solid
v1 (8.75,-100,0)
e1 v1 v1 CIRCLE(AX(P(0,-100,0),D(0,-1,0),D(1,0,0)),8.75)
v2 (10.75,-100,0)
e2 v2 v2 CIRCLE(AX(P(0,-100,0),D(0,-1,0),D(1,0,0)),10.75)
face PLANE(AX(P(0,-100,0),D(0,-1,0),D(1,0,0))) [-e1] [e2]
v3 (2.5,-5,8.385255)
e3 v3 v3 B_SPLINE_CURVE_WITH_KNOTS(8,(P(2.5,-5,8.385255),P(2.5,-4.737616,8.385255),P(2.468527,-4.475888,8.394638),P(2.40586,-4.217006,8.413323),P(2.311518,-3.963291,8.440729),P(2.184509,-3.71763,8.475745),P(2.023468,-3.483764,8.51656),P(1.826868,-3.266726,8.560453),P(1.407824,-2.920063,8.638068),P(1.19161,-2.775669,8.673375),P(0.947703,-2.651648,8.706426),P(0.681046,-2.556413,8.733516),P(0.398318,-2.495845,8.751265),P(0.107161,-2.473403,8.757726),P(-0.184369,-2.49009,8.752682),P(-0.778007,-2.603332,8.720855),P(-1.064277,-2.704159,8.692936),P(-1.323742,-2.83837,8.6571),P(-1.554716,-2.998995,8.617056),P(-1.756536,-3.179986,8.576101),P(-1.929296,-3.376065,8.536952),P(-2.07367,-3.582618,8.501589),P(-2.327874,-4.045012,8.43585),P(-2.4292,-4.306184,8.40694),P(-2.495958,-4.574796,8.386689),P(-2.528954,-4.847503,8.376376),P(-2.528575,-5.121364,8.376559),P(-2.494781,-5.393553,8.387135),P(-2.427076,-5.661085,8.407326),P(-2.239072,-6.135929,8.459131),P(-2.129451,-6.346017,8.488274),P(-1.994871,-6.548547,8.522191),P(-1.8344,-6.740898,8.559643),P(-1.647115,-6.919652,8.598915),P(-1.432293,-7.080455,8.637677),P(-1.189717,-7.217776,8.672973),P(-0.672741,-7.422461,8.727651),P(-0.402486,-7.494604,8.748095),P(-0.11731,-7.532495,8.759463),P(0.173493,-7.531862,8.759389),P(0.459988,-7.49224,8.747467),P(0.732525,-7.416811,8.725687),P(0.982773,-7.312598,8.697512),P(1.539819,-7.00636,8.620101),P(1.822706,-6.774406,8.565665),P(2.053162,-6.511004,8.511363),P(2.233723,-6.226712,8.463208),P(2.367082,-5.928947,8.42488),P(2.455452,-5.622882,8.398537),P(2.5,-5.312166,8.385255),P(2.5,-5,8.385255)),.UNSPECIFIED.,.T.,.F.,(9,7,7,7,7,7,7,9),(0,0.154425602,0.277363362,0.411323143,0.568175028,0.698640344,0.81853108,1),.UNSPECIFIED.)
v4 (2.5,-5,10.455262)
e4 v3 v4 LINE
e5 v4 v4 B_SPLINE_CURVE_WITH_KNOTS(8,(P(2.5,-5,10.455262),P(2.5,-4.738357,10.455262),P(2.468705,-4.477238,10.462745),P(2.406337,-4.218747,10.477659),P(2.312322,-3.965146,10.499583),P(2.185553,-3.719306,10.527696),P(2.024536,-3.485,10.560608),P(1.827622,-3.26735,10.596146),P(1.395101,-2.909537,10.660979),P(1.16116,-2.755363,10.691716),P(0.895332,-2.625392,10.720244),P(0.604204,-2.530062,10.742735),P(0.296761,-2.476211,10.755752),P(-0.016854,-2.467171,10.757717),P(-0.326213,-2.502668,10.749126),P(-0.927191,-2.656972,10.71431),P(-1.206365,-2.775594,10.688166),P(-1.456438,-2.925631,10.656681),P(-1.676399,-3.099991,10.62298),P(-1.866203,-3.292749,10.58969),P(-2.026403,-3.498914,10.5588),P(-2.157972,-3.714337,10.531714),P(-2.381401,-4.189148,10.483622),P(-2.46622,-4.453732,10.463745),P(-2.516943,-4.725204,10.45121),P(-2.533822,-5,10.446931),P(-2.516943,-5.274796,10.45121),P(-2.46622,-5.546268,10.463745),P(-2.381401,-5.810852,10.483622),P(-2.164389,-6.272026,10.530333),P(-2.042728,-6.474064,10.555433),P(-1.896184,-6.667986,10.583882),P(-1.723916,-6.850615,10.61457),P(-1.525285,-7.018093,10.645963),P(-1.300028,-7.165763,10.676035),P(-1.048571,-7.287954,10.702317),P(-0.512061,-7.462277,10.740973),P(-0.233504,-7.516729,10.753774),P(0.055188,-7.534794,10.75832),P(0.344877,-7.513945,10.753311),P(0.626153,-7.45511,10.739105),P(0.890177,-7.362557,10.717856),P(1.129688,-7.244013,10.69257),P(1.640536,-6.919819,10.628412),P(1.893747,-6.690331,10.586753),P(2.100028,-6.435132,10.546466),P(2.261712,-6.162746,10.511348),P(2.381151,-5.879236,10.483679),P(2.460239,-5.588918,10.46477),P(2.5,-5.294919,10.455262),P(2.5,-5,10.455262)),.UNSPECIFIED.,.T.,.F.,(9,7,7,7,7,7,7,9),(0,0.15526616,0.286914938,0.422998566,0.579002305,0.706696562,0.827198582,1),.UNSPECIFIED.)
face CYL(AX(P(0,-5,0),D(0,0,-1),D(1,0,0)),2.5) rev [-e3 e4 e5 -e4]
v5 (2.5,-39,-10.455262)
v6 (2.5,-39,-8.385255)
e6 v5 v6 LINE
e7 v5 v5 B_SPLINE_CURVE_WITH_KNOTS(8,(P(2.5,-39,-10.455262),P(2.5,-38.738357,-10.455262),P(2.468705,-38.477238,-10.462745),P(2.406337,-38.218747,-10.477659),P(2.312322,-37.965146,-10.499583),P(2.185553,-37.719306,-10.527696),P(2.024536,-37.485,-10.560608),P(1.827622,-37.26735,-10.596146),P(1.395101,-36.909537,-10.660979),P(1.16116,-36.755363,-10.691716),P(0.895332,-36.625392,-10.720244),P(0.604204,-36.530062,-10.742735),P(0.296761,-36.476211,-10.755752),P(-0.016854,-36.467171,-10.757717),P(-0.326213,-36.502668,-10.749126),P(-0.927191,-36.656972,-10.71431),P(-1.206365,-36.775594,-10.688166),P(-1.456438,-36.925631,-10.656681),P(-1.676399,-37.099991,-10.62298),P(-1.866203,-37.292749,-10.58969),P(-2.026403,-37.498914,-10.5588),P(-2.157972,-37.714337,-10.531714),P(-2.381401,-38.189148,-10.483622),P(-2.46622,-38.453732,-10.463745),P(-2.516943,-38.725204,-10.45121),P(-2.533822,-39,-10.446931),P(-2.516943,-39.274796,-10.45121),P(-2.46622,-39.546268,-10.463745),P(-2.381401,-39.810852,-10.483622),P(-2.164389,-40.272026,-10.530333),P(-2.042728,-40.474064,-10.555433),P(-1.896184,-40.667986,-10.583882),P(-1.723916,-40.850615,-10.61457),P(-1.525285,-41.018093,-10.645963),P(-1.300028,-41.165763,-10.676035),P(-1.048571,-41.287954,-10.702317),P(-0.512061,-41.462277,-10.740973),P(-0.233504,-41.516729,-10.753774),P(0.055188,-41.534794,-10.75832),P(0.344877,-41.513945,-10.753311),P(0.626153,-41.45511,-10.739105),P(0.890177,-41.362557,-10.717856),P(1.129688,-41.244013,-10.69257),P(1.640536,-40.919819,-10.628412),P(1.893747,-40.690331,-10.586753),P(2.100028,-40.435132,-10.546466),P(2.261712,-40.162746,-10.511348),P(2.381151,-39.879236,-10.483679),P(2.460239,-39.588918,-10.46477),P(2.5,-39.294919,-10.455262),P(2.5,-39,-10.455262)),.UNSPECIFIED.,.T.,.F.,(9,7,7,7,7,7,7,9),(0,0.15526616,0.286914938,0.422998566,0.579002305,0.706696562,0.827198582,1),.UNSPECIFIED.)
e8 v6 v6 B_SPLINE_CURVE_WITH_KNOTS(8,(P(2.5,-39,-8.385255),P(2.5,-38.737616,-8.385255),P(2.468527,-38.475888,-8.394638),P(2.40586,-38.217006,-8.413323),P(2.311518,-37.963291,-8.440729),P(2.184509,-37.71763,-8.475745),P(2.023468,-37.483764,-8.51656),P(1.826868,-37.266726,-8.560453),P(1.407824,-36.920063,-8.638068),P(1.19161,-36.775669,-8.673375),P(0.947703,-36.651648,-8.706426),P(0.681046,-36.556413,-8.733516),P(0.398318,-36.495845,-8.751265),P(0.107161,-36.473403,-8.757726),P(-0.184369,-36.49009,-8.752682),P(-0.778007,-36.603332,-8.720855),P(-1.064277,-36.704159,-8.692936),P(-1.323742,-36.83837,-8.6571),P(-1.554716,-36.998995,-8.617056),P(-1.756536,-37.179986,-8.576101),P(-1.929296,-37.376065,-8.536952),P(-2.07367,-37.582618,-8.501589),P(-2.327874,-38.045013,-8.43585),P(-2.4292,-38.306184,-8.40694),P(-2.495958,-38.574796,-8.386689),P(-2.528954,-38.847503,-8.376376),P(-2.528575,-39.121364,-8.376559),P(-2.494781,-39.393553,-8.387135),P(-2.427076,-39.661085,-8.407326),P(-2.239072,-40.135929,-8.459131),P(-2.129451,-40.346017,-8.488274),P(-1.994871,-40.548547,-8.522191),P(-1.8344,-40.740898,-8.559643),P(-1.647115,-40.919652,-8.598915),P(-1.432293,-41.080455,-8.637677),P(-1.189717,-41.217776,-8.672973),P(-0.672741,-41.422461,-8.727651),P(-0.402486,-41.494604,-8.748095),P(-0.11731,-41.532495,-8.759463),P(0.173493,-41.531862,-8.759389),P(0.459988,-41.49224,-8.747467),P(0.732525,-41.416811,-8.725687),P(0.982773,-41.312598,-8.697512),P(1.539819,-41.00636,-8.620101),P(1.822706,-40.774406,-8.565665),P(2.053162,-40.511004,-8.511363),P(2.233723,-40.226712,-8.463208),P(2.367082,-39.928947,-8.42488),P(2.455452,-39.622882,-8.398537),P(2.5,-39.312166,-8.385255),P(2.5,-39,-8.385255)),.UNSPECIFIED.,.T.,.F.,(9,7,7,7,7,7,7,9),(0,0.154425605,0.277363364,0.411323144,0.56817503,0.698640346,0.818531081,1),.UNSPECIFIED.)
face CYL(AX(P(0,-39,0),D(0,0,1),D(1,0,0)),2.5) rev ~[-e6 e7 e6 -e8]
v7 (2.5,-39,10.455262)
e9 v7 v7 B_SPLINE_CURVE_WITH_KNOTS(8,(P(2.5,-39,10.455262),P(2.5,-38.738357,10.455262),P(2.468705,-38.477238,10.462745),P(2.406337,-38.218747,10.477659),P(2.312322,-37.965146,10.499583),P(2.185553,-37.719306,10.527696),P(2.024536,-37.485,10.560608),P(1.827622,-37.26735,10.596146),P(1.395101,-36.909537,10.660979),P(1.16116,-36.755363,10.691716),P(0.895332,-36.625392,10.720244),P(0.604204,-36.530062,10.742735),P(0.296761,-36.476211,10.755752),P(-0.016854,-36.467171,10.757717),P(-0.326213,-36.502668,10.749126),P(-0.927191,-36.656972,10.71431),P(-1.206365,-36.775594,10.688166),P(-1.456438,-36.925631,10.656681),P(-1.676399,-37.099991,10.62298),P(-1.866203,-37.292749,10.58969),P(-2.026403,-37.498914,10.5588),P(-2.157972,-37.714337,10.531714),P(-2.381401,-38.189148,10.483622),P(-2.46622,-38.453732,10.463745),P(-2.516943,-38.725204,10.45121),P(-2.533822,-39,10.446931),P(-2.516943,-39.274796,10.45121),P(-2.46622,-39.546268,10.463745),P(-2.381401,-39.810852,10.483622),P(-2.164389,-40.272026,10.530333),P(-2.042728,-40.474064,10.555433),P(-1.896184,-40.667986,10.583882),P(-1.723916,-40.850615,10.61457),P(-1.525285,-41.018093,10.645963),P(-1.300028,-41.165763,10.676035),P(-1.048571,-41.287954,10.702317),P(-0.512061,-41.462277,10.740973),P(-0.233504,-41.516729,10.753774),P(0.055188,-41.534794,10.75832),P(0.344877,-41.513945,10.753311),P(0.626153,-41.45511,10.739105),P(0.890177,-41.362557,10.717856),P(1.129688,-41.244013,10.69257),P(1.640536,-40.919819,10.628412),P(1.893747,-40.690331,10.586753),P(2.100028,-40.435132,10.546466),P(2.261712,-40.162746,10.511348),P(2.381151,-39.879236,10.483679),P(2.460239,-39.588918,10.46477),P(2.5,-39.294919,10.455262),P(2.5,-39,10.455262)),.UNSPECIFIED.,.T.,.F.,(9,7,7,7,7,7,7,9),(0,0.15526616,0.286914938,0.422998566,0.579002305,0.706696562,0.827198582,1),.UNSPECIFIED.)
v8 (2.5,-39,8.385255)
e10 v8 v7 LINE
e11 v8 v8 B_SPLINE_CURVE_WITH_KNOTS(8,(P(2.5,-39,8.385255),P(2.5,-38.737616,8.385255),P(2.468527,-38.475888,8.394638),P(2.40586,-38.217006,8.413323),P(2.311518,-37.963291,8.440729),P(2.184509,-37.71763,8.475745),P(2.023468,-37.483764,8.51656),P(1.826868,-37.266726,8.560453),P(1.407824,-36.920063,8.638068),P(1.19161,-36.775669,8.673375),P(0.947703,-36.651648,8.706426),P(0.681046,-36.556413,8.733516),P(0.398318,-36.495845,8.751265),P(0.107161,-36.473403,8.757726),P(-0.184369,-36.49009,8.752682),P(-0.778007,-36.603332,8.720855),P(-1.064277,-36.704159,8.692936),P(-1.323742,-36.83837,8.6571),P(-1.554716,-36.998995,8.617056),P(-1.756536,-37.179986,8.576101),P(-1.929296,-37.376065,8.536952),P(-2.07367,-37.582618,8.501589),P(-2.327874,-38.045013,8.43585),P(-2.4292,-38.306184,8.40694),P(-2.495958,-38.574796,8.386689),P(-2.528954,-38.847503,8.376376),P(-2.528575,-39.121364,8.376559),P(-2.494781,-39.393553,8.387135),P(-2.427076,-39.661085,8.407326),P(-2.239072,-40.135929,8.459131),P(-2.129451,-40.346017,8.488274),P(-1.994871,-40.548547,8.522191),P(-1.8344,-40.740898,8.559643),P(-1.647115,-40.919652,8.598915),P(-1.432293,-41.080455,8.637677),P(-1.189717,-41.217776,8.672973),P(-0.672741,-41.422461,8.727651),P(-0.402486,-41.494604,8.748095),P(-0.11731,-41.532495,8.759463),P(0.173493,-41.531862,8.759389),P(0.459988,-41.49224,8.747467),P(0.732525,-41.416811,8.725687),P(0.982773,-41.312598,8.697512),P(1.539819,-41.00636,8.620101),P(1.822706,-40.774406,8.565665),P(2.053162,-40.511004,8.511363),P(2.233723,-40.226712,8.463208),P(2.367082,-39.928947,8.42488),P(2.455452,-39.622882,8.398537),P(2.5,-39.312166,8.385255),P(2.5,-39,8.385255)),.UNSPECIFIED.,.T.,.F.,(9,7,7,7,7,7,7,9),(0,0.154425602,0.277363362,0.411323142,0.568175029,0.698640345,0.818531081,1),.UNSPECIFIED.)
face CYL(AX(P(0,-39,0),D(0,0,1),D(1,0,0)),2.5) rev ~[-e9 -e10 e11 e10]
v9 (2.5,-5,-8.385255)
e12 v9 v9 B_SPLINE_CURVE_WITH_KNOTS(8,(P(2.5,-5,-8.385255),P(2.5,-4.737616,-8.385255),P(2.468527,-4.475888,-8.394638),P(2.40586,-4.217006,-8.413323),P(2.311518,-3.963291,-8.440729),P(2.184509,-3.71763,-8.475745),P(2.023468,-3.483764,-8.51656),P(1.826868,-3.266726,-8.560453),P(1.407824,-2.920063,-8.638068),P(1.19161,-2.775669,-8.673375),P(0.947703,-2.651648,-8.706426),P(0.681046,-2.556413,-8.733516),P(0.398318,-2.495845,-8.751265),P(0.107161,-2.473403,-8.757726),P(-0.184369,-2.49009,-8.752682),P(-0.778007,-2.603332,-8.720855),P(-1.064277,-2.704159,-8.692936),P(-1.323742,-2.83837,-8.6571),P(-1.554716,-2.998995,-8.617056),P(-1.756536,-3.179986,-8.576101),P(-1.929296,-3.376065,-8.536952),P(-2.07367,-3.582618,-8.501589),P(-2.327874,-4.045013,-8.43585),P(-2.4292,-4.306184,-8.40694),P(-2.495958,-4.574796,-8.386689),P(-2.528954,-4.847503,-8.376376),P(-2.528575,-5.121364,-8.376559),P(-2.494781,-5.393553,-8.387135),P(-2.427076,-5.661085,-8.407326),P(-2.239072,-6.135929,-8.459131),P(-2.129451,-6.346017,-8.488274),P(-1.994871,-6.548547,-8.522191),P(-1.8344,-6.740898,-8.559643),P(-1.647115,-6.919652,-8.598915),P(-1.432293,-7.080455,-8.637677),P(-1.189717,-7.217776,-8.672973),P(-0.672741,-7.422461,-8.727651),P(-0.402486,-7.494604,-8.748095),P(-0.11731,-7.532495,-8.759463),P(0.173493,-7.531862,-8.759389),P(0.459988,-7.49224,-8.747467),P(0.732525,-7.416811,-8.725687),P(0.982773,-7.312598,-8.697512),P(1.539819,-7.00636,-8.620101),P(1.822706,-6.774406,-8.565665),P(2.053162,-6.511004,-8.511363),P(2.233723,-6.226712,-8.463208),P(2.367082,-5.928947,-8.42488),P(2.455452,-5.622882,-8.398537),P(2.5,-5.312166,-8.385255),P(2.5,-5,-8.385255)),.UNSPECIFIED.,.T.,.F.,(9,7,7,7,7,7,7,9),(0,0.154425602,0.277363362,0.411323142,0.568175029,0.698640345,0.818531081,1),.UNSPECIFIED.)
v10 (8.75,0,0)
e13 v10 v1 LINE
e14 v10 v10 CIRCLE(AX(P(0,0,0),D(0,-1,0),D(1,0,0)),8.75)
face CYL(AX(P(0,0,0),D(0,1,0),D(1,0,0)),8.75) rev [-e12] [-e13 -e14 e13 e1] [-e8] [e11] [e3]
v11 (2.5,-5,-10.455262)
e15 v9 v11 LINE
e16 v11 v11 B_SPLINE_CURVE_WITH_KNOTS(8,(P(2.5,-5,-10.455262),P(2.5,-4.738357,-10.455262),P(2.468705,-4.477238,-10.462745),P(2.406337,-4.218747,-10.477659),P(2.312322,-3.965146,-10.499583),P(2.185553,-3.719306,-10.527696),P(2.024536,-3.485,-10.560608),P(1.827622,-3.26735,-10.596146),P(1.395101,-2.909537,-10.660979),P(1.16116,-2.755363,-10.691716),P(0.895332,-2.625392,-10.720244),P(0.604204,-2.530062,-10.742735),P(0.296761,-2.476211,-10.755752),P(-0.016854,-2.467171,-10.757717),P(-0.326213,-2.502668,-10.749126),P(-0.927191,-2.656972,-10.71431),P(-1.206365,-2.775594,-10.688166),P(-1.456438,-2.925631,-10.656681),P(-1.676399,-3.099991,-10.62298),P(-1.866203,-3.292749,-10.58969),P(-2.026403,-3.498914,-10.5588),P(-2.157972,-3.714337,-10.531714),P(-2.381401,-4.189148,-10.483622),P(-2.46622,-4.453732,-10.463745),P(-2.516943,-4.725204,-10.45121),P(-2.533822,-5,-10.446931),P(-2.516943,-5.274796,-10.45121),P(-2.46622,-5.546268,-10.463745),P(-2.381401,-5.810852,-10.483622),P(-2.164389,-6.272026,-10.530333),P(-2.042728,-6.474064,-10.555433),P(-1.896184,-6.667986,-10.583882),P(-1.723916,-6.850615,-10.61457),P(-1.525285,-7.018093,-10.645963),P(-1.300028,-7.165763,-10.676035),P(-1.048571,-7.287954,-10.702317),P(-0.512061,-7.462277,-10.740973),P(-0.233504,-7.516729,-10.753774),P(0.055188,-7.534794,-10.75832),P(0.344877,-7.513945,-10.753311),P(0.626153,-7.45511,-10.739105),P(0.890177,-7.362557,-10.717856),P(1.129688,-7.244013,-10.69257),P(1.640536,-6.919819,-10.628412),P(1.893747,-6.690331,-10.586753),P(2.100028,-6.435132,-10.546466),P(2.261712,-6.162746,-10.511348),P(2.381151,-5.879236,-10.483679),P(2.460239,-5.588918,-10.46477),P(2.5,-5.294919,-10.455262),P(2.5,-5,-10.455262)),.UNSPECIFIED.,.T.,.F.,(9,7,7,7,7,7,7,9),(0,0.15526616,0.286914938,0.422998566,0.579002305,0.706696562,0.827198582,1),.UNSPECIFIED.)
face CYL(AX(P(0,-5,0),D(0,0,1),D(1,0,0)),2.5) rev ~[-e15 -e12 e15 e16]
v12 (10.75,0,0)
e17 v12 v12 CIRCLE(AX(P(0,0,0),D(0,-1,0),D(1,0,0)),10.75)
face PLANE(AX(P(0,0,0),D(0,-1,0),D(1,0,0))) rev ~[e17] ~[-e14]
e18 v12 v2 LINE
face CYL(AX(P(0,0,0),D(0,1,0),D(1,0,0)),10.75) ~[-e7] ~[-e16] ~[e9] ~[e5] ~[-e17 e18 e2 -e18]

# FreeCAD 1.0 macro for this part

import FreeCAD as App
import Part
import Sketcher

V = App.Vector
Q = App.Units.Quantity

doc = App.newDocument("Part")
body = doc.addObject("PartDesign::Body", "Body")

sketch1 = doc.addObject("Sketcher::SketchObject", "Sketch")
body.addObject(sketch1)
sketch1.AttachmentSupport = (doc.XZ_Plane, [""])
sketch1.MapMode = "FlatFace"
sketch1.addGeometry([
    Part.Circle(V(0, 0, 0), V(0, 0, 1), 11),
    Part.Circle(V(0, 0, 0), V(0, 0, 1), 9),
], False)
sketch1.addConstraint([
    Sketcher.Constraint("Coincident", 0, 3, -1, 1),
    Sketcher.Constraint("Coincident", 1, 3, -1, 1),
    Sketcher.Constraint("Diameter", 0, Q("21.5 mm")),
    Sketcher.Constraint("Diameter", 1, Q("17.5 mm")),
])
pad1 = doc.addObject("PartDesign::Pad", "Pad")
body.addObject(pad1)
pad1.Profile = sketch1
pad1.Length = 100

sketch2 = doc.addObject("Sketcher::SketchObject", "Sketch001")
body.addObject(sketch2)
sketch2.AttachmentSupport = (doc.XY_Plane, [""])
sketch2.MapMode = "FlatFace"
sketch2.addGeometry([
    Part.Circle(V(0, -5, 0), V(0, 0, 1), 2.5),
    Part.Circle(V(0, -39, 0), V(0, 0, 1), 2.5),
], False)
sketch2.addConstraint([
    Sketcher.Constraint("Equal", 0, 1),
    Sketcher.Constraint("PointOnObject", 0, 3, -2),
    Sketcher.Constraint("PointOnObject", 1, 3, -2),
    Sketcher.Constraint("Diameter", 0, Q("5 mm")),
    Sketcher.Constraint("DistanceY", 0, 3, -1, 1, Q("5 mm")),
    Sketcher.Constraint("DistanceY", 1, 3, -1, 1, Q("39 mm")),
])
pocket1 = doc.addObject("PartDesign::Pocket", "Pocket")
body.addObject(pocket1)
pocket1.Profile = sketch2
pocket1.Length = 50
pocket1.Midplane = True

doc.recompute()
